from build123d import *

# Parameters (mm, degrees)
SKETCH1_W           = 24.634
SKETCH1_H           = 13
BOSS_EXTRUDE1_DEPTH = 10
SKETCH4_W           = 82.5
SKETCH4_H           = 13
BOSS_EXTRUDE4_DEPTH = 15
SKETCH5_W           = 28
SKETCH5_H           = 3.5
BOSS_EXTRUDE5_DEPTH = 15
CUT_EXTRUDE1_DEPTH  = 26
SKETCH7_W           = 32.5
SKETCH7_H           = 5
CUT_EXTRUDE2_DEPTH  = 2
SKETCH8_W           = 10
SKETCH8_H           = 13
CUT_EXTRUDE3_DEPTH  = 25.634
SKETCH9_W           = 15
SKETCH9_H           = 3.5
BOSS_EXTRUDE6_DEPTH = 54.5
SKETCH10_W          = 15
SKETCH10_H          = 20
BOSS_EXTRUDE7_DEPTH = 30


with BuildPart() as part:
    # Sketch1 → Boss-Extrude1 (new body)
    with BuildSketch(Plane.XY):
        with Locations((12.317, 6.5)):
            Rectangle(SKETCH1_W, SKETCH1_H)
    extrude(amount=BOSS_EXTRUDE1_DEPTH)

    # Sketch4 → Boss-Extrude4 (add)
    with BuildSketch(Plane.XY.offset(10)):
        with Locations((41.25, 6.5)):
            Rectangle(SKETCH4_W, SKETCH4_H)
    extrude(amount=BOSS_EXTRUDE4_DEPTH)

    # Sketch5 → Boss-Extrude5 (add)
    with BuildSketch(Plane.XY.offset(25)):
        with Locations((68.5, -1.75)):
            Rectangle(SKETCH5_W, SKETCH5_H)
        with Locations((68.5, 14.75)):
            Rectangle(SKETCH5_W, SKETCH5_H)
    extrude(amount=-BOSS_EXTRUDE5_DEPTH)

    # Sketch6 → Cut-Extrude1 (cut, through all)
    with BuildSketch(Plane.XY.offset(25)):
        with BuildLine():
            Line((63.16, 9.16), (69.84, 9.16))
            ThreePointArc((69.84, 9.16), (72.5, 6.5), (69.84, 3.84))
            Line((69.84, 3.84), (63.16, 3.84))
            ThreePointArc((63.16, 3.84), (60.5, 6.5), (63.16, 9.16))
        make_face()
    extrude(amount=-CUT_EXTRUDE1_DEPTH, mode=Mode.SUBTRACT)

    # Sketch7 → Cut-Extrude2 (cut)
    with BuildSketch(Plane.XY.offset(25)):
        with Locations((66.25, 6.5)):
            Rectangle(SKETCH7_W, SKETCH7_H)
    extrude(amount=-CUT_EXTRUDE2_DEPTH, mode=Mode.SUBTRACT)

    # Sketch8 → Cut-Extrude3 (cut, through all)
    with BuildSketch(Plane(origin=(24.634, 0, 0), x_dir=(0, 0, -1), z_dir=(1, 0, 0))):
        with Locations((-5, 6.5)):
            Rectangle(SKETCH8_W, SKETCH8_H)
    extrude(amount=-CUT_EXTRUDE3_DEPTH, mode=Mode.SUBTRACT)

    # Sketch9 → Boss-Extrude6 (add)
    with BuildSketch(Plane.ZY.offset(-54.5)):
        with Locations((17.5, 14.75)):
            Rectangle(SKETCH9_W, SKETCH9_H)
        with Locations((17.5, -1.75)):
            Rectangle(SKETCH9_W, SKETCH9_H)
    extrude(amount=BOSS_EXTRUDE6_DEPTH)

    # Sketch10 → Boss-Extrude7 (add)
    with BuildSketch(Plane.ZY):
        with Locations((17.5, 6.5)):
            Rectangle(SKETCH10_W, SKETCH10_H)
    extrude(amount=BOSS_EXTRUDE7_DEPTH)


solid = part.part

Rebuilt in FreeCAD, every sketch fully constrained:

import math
import FreeCAD as App
import Part
import Sketcher

doc = App.newDocument("Part")
body = doc.addObject("PartDesign::Body", "Body")

sketch1 = doc.addObject("Sketcher::SketchObject", "Sketch")
body.addObject(sketch1)
sketch1.AttachmentSupport = (doc.XY_Plane, [""])
sketch1.MapMode = "FlatFace"
sketch1.addGeometry([
    Part.LineSegment(App.Vector(0, 13, 0), App.Vector(0, 0, 0)),
    Part.LineSegment(App.Vector(0, 0, 0), App.Vector(24.634, 0, 0)),
    Part.LineSegment(App.Vector(24.634, 0, 0), App.Vector(24.634, 13, 0)),
    Part.LineSegment(App.Vector(24.634, 13, 0), App.Vector(0, 13, 0)),
], False)
sketch1.addConstraint([
    Sketcher.Constraint("Coincident", 0, 2, 1, 1),
    Sketcher.Constraint("Coincident", 1, 2, 2, 1),
    Sketcher.Constraint("Coincident", 2, 2, 3, 1),
    Sketcher.Constraint("Coincident", 3, 2, 0, 1),
    Sketcher.Constraint("Vertical", 0),
    Sketcher.Constraint("Horizontal", 1),
    Sketcher.Constraint("Vertical", 2),
    Sketcher.Constraint("Horizontal", 3),
    Sketcher.Constraint("Coincident", 0, 2, -1, 1),
    Sketcher.Constraint("DistanceY", 0, 2, 0, 1, 13.0),
    Sketcher.Constraint("DistanceX", 1, 1, 1, 2, 24.634),
])
pad1 = doc.addObject("PartDesign::Pad", "Pad")
body.addObject(pad1)
pad1.Profile = sketch1
pad1.Length = 10

sketch2 = doc.addObject("Sketcher::SketchObject", "Sketch001")
body.addObject(sketch2)
sketch2.AttachmentSupport = (doc.XY_Plane, [""])
sketch2.MapMode = "FlatFace"
sketch2.AttachmentOffset = App.Placement(App.Vector(0, 0, 10), App.Rotation())
sketch2.addGeometry([
    Part.LineSegment(App.Vector(0, 13, 0), App.Vector(0, 0, 0)),
    Part.LineSegment(App.Vector(0, 0, 0), App.Vector(82.5, 0, 0)),
    Part.LineSegment(App.Vector(82.5, 0, 0), App.Vector(82.5, 13, 0)),
    Part.LineSegment(App.Vector(82.5, 13, 0), App.Vector(0, 13, 0)),
], False)
sketch2.addConstraint([
    Sketcher.Constraint("Coincident", 0, 2, 1, 1),
    Sketcher.Constraint("Coincident", 1, 2, 2, 1),
    Sketcher.Constraint("Coincident", 2, 2, 3, 1),
    Sketcher.Constraint("Coincident", 3, 2, 0, 1),
    Sketcher.Constraint("Vertical", 0),
    Sketcher.Constraint("Horizontal", 1),
    Sketcher.Constraint("Vertical", 2),
    Sketcher.Constraint("Horizontal", 3),
    Sketcher.Constraint("Coincident", 0, 2, -1, 1),
    Sketcher.Constraint("DistanceY", 0, 2, 0, 1, 13.0),
    Sketcher.Constraint("DistanceX", 1, 1, 1, 2, 82.5),
])
pad2 = doc.addObject("PartDesign::Pad", "Pad001")
body.addObject(pad2)
pad2.Profile = sketch2
pad2.Length = 15

sketch3 = doc.addObject("Sketcher::SketchObject", "Sketch002")
body.addObject(sketch3)
sketch3.AttachmentSupport = (doc.XY_Plane, [""])
sketch3.MapMode = "FlatFace"
sketch3.AttachmentOffset = App.Placement(App.Vector(0, 0, 25), App.Rotation())
sketch3.addGeometry([
    Part.LineSegment(App.Vector(54.5, 0, 0), App.Vector(54.5, -3.5, 0)),
    Part.LineSegment(App.Vector(54.5, -3.5, 0), App.Vector(82.5, -3.5, 0)),
    Part.LineSegment(App.Vector(82.5, -3.5, 0), App.Vector(82.5, 0, 0)),
    Part.LineSegment(App.Vector(82.5, 0, 0), App.Vector(54.5, 0, 0)),
    Part.LineSegment(App.Vector(54.5, 16.5, 0), App.Vector(54.5, 13, 0)),
    Part.LineSegment(App.Vector(54.5, 13, 0), App.Vector(82.5, 13, 0)),
    Part.LineSegment(App.Vector(82.5, 13, 0), App.Vector(82.5, 16.5, 0)),
    Part.LineSegment(App.Vector(82.5, 16.5, 0), App.Vector(54.5, 16.5, 0)),
], False)
sketch3.addConstraint([
    Sketcher.Constraint("Coincident", 0, 2, 1, 1),
    Sketcher.Constraint("Coincident", 1, 2, 2, 1),
    Sketcher.Constraint("Coincident", 2, 2, 3, 1),
    Sketcher.Constraint("Coincident", 3, 2, 0, 1),
    Sketcher.Constraint("Coincident", 4, 2, 5, 1),
    Sketcher.Constraint("Coincident", 5, 2, 6, 1),
    Sketcher.Constraint("Coincident", 6, 2, 7, 1),
    Sketcher.Constraint("Coincident", 7, 2, 4, 1),
    Sketcher.Constraint("Vertical", 0),
    Sketcher.Constraint("Horizontal", 1),
    Sketcher.Constraint("Vertical", 2),
    Sketcher.Constraint("Horizontal", 3),
    Sketcher.Constraint("Vertical", 4),
    Sketcher.Constraint("Horizontal", 5),
    Sketcher.Constraint("Vertical", 6),
    Sketcher.Constraint("Horizontal", 7),
    Sketcher.Constraint("PointOnObject", 2, 2, -1),
    Sketcher.Constraint("Vertical", 3, 2, 4, 2),
    Sketcher.Constraint("Vertical", 2, 2, 5, 2),
    Sketcher.Constraint("Equal", 2, 4),
    Sketcher.Constraint("DistanceX", 1, 1, 1, 2, 28.0),
    Sketcher.Constraint("DistanceY", 0, 2, 0, 1, 3.5),
    Sketcher.Constraint("DistanceY", -1, 1, 4, 2, 13.0),
    Sketcher.Constraint("DistanceX", -1, 1, 0, 2, 54.5),
])
pad3 = doc.addObject("PartDesign::Pad", "Pad002")
body.addObject(pad3)
pad3.Profile = sketch3
pad3.Length = 15
pad3.Reversed = True

sketch4 = doc.addObject("Sketcher::SketchObject", "Sketch003")
body.addObject(sketch4)
sketch4.AttachmentSupport = (doc.XY_Plane, [""])
sketch4.MapMode = "FlatFace"
sketch4.AttachmentOffset = App.Placement(App.Vector(0, 0, 25), App.Rotation())
sketch4.addGeometry([
    Part.LineSegment(App.Vector(69.84, 9.16, 0), App.Vector(63.16, 9.16, 0)),
    Part.ArcOfCircle(Part.Circle(App.Vector(63.16, 6.5, 0), App.Vector(0, 0, 1), 2.66), math.radians(90), math.radians(270)),
    Part.LineSegment(App.Vector(63.16, 3.84, 0), App.Vector(69.84, 3.84, 0)),
    Part.ArcOfCircle(Part.Circle(App.Vector(69.84, 6.5, 0), App.Vector(0, 0, 1), 2.66), math.radians(-90), math.radians(90)),
], False)
sketch4.addConstraint([
    Sketcher.Constraint("Tangent", 0, 2, 1, 1),
    Sketcher.Constraint("Tangent", 1, 2, 2, 1),
    Sketcher.Constraint("Tangent", 2, 2, 3, 1),
    Sketcher.Constraint("Tangent", 3, 2, 0, 1),
    Sketcher.Constraint("Horizontal", 0),
    Sketcher.Constraint("Horizontal", 2),
    Sketcher.Constraint("Radius", 1, 2.66),
    Sketcher.Constraint("DistanceX", 0, 2, 0, 1, 6.68),
    Sketcher.Constraint("DistanceY", -1, 1, 1, 3, 6.5),
    Sketcher.Constraint("DistanceX", -1, 1, 1, 3, 63.16),
])
pocket1 = doc.addObject("PartDesign::Pocket", "Pocket")
body.addObject(pocket1)
pocket1.Profile = sketch4
pocket1.Type = "ThroughAll"

sketch5 = doc.addObject("Sketcher::SketchObject", "Sketch004")
body.addObject(sketch5)
sketch5.AttachmentSupport = (doc.XY_Plane, [""])
sketch5.MapMode = "FlatFace"
sketch5.AttachmentOffset = App.Placement(App.Vector(0, 0, 25), App.Rotation())
sketch5.addGeometry([
    Part.LineSegment(App.Vector(50, 9, 0), App.Vector(50, 4, 0)),
    Part.LineSegment(App.Vector(50, 4, 0), App.Vector(82.5, 4, 0)),
    Part.LineSegment(App.Vector(82.5, 4, 0), App.Vector(82.5, 9, 0)),
    Part.LineSegment(App.Vector(82.5, 9, 0), App.Vector(50, 9, 0)),
], False)
sketch5.addConstraint([
    Sketcher.Constraint("Coincident", 0, 2, 1, 1),
    Sketcher.Constraint("Coincident", 1, 2, 2, 1),
    Sketcher.Constraint("Coincident", 2, 2, 3, 1),
    Sketcher.Constraint("Coincident", 3, 2, 0, 1),
    Sketcher.Constraint("Vertical", 0),
    Sketcher.Constraint("Horizontal", 1),
    Sketcher.Constraint("Vertical", 2),
    Sketcher.Constraint("Horizontal", 3),
    Sketcher.Constraint("DistanceY", 0, 2, 0, 1, 5.0),
    Sketcher.Constraint("DistanceX", 1, 1, 1, 2, 32.5),
    Sketcher.Constraint("DistanceX", -1, 1, 0, 2, 50.0),
    Sketcher.Constraint("DistanceY", -1, 1, 0, 2, 4.0),
])
pocket2 = doc.addObject("PartDesign::Pocket", "Pocket001")
body.addObject(pocket2)
pocket2.Profile = sketch5
pocket2.Length = 2

sketch6 = doc.addObject("Sketcher::SketchObject", "Sketch005")
body.addObject(sketch6)
sketch6.AttachmentSupport = (doc.YZ_Plane, [""])
sketch6.MapMode = "FlatFace"
sketch6.AttachmentOffset = App.Placement(App.Vector(0, 0, 24.634), App.Rotation())
sketch6.addGeometry([
    Part.LineSegment(App.Vector(13, 10, 0), App.Vector(0, 10, 0)),
    Part.LineSegment(App.Vector(0, 10, 0), App.Vector(0, 0, 0)),
    Part.LineSegment(App.Vector(0, 0, 0), App.Vector(13, 0, 0)),
    Part.LineSegment(App.Vector(13, 0, 0), App.Vector(13, 10, 0)),
], False)
sketch6.addConstraint([
    Sketcher.Constraint("Coincident", 0, 2, 1, 1),
    Sketcher.Constraint("Coincident", 1, 2, 2, 1),
    Sketcher.Constraint("Coincident", 2, 2, 3, 1),
    Sketcher.Constraint("Coincident", 3, 2, 0, 1),
    Sketcher.Constraint("Horizontal", 0),
    Sketcher.Constraint("Vertical", 1),
    Sketcher.Constraint("Horizontal", 2),
    Sketcher.Constraint("Vertical", 3),
    Sketcher.Constraint("Coincident", 1, 2, -1, 1),
    Sketcher.Constraint("DistanceX", 0, 2, 0, 1, 13.0),
    Sketcher.Constraint("DistanceY", 1, 2, 1, 1, 10.0),
])
pocket3 = doc.addObject("PartDesign::Pocket", "Pocket002")
body.addObject(pocket3)
pocket3.Profile = sketch6
pocket3.Type = "ThroughAll"

sketch7 = doc.addObject("Sketcher::SketchObject", "Sketch006")
body.addObject(sketch7)
sketch7.AttachmentSupport = (doc.YZ_Plane, [""])
sketch7.MapMode = "FlatFace"
sketch7.AttachmentOffset = App.Placement(App.Vector(0, 0, 54.5), App.Rotation())
sketch7.addGeometry([
    Part.LineSegment(App.Vector(16.5, 10, 0), App.Vector(13, 10, 0)),
    Part.LineSegment(App.Vector(13, 10, 0), App.Vector(13, 25, 0)),
    Part.LineSegment(App.Vector(13, 25, 0), App.Vector(16.5, 25, 0)),
    Part.LineSegment(App.Vector(16.5, 25, 0), App.Vector(16.5, 10, 0)),
    Part.LineSegment(App.Vector(0, 10, 0), App.Vector(-3.5, 10, 0)),
    Part.LineSegment(App.Vector(-3.5, 10, 0), App.Vector(-3.5, 25, 0)),
    Part.LineSegment(App.Vector(-3.5, 25, 0), App.Vector(0, 25, 0)),
    Part.LineSegment(App.Vector(0, 25, 0), App.Vector(0, 10, 0)),
], False)
sketch7.addConstraint([
    Sketcher.Constraint("Coincident", 0, 2, 1, 1),
    Sketcher.Constraint("Coincident", 1, 2, 2, 1),
    Sketcher.Constraint("Coincident", 2, 2, 3, 1),
    Sketcher.Constraint("Coincident", 3, 2, 0, 1),
    Sketcher.Constraint("Coincident", 4, 2, 5, 1),
    Sketcher.Constraint("Coincident", 5, 2, 6, 1),
    Sketcher.Constraint("Coincident", 6, 2, 7, 1),
    Sketcher.Constraint("Coincident", 7, 2, 4, 1),
    Sketcher.Constraint("Horizontal", 0),
    Sketcher.Constraint("Vertical", 1),
    Sketcher.Constraint("Horizontal", 2),
    Sketcher.Constraint("Vertical", 3),
    Sketcher.Constraint("Horizontal", 4),
    Sketcher.Constraint("Vertical", 5),
    Sketcher.Constraint("Horizontal", 6),
    Sketcher.Constraint("Vertical", 7),
    Sketcher.Constraint("PointOnObject", 6, 2, -2),
    Sketcher.Constraint("Horizontal", 3, 2, 4, 2),
    Sketcher.Constraint("Horizontal", 2, 2, 5, 2),
    Sketcher.Constraint("Equal", 2, 4),
    Sketcher.Constraint("DistanceY", 1, 1, 1, 2, 15.0),
    Sketcher.Constraint("DistanceX", 0, 2, 0, 1, 3.5),
    Sketcher.Constraint("DistanceX", -1, 1, 0, 2, 13.0),
    Sketcher.Constraint("DistanceY", -1, 1, 0, 2, 10.0),
])
pad4 = doc.addObject("PartDesign::Pad", "Pad003")
body.addObject(pad4)
pad4.Profile = sketch7
pad4.Length = 54.5
pad4.Reversed = True

sketch8 = doc.addObject("Sketcher::SketchObject", "Sketch007")
body.addObject(sketch8)
sketch8.AttachmentSupport = (doc.YZ_Plane, [""])
sketch8.MapMode = "FlatFace"
sketch8.addGeometry([
    Part.LineSegment(App.Vector(16.5, 10, 0), App.Vector(-3.5, 10, 0)),
    Part.LineSegment(App.Vector(-3.5, 10, 0), App.Vector(-3.5, 25, 0)),
    Part.LineSegment(App.Vector(-3.5, 25, 0), App.Vector(16.5, 25, 0)),
    Part.LineSegment(App.Vector(16.5, 25, 0), App.Vector(16.5, 10, 0)),
], False)
sketch8.addConstraint([
    Sketcher.Constraint("Coincident", 0, 2, 1, 1),
    Sketcher.Constraint("Coincident", 1, 2, 2, 1),
    Sketcher.Constraint("Coincident", 2, 2, 3, 1),
    Sketcher.Constraint("Coincident", 3, 2, 0, 1),
    Sketcher.Constraint("Horizontal", 0),
    Sketcher.Constraint("Vertical", 1),
    Sketcher.Constraint("Horizontal", 2),
    Sketcher.Constraint("Vertical", 3),
    Sketcher.Constraint("DistanceX", 0, 2, 0, 1, 20.0),
    Sketcher.Constraint("DistanceY", 1, 1, 1, 2, 15.0),
    Sketcher.Constraint("DistanceY", -1, 1, 0, 2, 10.0),
    Sketcher.Constraint("DistanceX", 0, 2, -1, 1, 3.5),
])
pad5 = doc.addObject("PartDesign::Pad", "Pad004")
body.addObject(pad5)
pad5.Profile = sketch8
pad5.Length = 30
pad5.Reversed = True

doc.recompute()
